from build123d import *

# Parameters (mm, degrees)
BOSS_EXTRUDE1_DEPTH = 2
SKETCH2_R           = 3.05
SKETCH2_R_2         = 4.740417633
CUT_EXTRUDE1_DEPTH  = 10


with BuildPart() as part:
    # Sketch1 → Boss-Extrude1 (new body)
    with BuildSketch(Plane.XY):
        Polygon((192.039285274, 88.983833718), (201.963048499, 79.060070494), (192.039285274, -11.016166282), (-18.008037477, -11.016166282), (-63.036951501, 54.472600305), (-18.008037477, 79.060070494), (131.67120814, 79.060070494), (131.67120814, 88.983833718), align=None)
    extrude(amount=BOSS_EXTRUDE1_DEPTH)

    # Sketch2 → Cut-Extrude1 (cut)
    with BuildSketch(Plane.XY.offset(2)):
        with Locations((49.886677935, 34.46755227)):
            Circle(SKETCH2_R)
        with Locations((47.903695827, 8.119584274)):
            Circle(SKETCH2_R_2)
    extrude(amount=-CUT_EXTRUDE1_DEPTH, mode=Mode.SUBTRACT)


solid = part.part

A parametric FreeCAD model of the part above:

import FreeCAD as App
import Part
import Sketcher

V = App.Vector
Q = App.Units.Quantity


def add_polygon(sketch, points):
    """Adds a closed chain of lines whose ends are joined by coincident constraints."""
    first, n = sketch.GeometryCount, len(points)
    for a, b in zip(points, points[1:] + points[:1]):
        sketch.addGeometry(Part.LineSegment(App.Vector(*a, 0), App.Vector(*b, 0)), False)
    for i in range(n):
        sketch.addConstraint(Sketcher.Constraint("Coincident", first + i, 2, first + (i + 1) % n, 1))

doc = App.newDocument("Part")
body = doc.addObject("PartDesign::Body", "Body")

# Sketch on XY plane
sketch1 = body.newObject("Sketcher::SketchObject", "Sketch")
sketch1.AttachmentSupport = (doc.getObject("XY_Plane"), [""])
sketch1.MapMode = "FlatFace"
add_polygon(sketch1, [(201.963048, 79.06007), (192.039285, 88.983834), (131.671208, 88.983834), (131.671208, 79.06007), (-18.008037, 79.06007), (-63.036952, 54.4726), (-18.008037, -11.016166), (192.039285, -11.016166)])  # lines 0-7
sketch1.addConstraint(Sketcher.Constraint("Horizontal", 1))
sketch1.addConstraint(Sketcher.Constraint("Vertical", 2))
sketch1.addConstraint(Sketcher.Constraint("Horizontal", 3))
sketch1.addConstraint(Sketcher.Constraint("Horizontal", 6))
sketch1.addConstraint(Sketcher.Constraint("Horizontal", 3, 2, 7, 2))
sketch1.addConstraint(Sketcher.Constraint("Vertical", 3, 2, 5, 2))
sketch1.addConstraint(Sketcher.Constraint("Vertical", 0, 2, 6, 2))
sketch1.addConstraint(Sketcher.Constraint("Angle", 0, Q("135 deg")))
sketch1.addConstraint(Sketcher.Constraint("DistanceY", 5, 2, 1, 2, 100.0))
sketch1.addConstraint(Sketcher.Constraint("DistanceY", -1, 1, 4, 2, 54.4726))
sketch1.addConstraint(Sketcher.Constraint("Distance", 0, 14.034321))
sketch1.addConstraint(Sketcher.Constraint("Distance", 4, 51.304452))
sketch1.addConstraint(Sketcher.Constraint("DistanceX", 1, 2, 1, 1, 60.368077))
sketch1.addConstraint(Sketcher.Constraint("DistanceX", 3, 2, 3, 1, 149.679246))
sketch1.addConstraint(Sketcher.Constraint("DistanceX", -1, 1, 1, 2, 131.671208))
sketch1.addConstraint(Sketcher.Constraint("DistanceY", -1, 1, 2, 2, 79.06007))
pad1 = body.newObject("PartDesign::Pad", "Pad")
pad1.Profile = sketch1
pad1.Length = 2

# Sketch on XY plane
sketch2 = body.newObject("Sketcher::SketchObject", "Sketch001")
sketch2.AttachmentSupport = (doc.getObject("XY_Plane"), [""])
sketch2.MapMode = "FlatFace"
sketch2.AttachmentOffset = App.Placement(V(0, 0, 2), App.Rotation())
sketch2.addGeometry(Part.Circle(V(49.886678, 34.467552, 0), V(0, 0, 1), 3.05), False)
sketch2.addGeometry(Part.Circle(V(47.903696, 8.119584, 0), V(0, 0, 1), 4.740418), False)
sketch2.addConstraint(Sketcher.Constraint("Diameter", 0, 6.1))
sketch2.addConstraint(Sketcher.Constraint("Diameter", 1, 9.480835))
sketch2.addConstraint(Sketcher.Constraint("DistanceX", -1, 1, 0, 3, 49.886678))
sketch2.addConstraint(Sketcher.Constraint("DistanceY", -1, 1, 0, 3, 34.467552))
sketch2.addConstraint(Sketcher.Constraint("DistanceX", -1, 1, 1, 3, 47.903696))
sketch2.addConstraint(Sketcher.Constraint("DistanceY", -1, 1, 1, 3, 8.119584))
pocket1 = body.newObject("PartDesign::Pocket", "Pocket")
pocket1.Profile = sketch2
pocket1.Length = 10

doc.recompute()
